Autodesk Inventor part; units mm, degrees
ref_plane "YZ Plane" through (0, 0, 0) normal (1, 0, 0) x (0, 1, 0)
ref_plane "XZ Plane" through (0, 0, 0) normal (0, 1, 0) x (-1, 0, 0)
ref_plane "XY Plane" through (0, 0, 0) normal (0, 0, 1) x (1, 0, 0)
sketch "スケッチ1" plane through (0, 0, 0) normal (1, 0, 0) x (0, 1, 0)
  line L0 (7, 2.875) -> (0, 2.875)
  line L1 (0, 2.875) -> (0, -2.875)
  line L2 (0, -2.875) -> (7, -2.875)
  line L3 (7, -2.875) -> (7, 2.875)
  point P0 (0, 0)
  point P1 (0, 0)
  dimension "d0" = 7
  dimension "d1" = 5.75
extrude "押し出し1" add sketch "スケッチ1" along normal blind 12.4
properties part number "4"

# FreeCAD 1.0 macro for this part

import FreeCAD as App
import Part
import Sketcher
from FreeCAD import Vector
Q = App.Units.Quantity


def add_polygon(sketch, points):
    """Adds a closed chain of lines whose ends are joined by coincident constraints."""
    first, n = sketch.GeometryCount, len(points)
    for a, b in zip(points, points[1:] + points[:1]):
        sketch.addGeometry(Part.LineSegment(App.Vector(*a, 0), App.Vector(*b, 0)), False)
    for i in range(n):
        sketch.addConstraint(Sketcher.Constraint("Coincident", first + i, 2, first + (i + 1) % n, 1))

doc = App.newDocument("Part")
body = doc.addObject("PartDesign::Body", "Body")

sketch1 = body.newObject("Sketcher::SketchObject", "Sketch")
sketch1.AttachmentSupport = (doc.getObject("YZ_Plane"), [""])
sketch1.MapMode = "FlatFace"
add_polygon(sketch1, [(7, -3), (7, 3), (0, 3), (0, -3)])
sketch1.addConstraint(Sketcher.Constraint("Vertical", 0))
sketch1.addConstraint(Sketcher.Constraint("Horizontal", 1))
sketch1.addConstraint(Sketcher.Constraint("Vertical", 2))
sketch1.addConstraint(Sketcher.Constraint("Horizontal", 3))
sketch1.addConstraint(Sketcher.Constraint("Symmetric", 1, 2, 2, 2, -1, 1))
sketch1.addConstraint(Sketcher.Constraint("DistanceX", 1, 2, 1, 1, Q("7 mm")))
sketch1.addConstraint(Sketcher.Constraint("DistanceY", 0, 1, 0, 2, Q("5.75 mm")))
pad1 = body.newObject("PartDesign::Pad", "Pad")
pad1.Profile = sketch1
pad1.Length = 12.4

doc.recompute()
